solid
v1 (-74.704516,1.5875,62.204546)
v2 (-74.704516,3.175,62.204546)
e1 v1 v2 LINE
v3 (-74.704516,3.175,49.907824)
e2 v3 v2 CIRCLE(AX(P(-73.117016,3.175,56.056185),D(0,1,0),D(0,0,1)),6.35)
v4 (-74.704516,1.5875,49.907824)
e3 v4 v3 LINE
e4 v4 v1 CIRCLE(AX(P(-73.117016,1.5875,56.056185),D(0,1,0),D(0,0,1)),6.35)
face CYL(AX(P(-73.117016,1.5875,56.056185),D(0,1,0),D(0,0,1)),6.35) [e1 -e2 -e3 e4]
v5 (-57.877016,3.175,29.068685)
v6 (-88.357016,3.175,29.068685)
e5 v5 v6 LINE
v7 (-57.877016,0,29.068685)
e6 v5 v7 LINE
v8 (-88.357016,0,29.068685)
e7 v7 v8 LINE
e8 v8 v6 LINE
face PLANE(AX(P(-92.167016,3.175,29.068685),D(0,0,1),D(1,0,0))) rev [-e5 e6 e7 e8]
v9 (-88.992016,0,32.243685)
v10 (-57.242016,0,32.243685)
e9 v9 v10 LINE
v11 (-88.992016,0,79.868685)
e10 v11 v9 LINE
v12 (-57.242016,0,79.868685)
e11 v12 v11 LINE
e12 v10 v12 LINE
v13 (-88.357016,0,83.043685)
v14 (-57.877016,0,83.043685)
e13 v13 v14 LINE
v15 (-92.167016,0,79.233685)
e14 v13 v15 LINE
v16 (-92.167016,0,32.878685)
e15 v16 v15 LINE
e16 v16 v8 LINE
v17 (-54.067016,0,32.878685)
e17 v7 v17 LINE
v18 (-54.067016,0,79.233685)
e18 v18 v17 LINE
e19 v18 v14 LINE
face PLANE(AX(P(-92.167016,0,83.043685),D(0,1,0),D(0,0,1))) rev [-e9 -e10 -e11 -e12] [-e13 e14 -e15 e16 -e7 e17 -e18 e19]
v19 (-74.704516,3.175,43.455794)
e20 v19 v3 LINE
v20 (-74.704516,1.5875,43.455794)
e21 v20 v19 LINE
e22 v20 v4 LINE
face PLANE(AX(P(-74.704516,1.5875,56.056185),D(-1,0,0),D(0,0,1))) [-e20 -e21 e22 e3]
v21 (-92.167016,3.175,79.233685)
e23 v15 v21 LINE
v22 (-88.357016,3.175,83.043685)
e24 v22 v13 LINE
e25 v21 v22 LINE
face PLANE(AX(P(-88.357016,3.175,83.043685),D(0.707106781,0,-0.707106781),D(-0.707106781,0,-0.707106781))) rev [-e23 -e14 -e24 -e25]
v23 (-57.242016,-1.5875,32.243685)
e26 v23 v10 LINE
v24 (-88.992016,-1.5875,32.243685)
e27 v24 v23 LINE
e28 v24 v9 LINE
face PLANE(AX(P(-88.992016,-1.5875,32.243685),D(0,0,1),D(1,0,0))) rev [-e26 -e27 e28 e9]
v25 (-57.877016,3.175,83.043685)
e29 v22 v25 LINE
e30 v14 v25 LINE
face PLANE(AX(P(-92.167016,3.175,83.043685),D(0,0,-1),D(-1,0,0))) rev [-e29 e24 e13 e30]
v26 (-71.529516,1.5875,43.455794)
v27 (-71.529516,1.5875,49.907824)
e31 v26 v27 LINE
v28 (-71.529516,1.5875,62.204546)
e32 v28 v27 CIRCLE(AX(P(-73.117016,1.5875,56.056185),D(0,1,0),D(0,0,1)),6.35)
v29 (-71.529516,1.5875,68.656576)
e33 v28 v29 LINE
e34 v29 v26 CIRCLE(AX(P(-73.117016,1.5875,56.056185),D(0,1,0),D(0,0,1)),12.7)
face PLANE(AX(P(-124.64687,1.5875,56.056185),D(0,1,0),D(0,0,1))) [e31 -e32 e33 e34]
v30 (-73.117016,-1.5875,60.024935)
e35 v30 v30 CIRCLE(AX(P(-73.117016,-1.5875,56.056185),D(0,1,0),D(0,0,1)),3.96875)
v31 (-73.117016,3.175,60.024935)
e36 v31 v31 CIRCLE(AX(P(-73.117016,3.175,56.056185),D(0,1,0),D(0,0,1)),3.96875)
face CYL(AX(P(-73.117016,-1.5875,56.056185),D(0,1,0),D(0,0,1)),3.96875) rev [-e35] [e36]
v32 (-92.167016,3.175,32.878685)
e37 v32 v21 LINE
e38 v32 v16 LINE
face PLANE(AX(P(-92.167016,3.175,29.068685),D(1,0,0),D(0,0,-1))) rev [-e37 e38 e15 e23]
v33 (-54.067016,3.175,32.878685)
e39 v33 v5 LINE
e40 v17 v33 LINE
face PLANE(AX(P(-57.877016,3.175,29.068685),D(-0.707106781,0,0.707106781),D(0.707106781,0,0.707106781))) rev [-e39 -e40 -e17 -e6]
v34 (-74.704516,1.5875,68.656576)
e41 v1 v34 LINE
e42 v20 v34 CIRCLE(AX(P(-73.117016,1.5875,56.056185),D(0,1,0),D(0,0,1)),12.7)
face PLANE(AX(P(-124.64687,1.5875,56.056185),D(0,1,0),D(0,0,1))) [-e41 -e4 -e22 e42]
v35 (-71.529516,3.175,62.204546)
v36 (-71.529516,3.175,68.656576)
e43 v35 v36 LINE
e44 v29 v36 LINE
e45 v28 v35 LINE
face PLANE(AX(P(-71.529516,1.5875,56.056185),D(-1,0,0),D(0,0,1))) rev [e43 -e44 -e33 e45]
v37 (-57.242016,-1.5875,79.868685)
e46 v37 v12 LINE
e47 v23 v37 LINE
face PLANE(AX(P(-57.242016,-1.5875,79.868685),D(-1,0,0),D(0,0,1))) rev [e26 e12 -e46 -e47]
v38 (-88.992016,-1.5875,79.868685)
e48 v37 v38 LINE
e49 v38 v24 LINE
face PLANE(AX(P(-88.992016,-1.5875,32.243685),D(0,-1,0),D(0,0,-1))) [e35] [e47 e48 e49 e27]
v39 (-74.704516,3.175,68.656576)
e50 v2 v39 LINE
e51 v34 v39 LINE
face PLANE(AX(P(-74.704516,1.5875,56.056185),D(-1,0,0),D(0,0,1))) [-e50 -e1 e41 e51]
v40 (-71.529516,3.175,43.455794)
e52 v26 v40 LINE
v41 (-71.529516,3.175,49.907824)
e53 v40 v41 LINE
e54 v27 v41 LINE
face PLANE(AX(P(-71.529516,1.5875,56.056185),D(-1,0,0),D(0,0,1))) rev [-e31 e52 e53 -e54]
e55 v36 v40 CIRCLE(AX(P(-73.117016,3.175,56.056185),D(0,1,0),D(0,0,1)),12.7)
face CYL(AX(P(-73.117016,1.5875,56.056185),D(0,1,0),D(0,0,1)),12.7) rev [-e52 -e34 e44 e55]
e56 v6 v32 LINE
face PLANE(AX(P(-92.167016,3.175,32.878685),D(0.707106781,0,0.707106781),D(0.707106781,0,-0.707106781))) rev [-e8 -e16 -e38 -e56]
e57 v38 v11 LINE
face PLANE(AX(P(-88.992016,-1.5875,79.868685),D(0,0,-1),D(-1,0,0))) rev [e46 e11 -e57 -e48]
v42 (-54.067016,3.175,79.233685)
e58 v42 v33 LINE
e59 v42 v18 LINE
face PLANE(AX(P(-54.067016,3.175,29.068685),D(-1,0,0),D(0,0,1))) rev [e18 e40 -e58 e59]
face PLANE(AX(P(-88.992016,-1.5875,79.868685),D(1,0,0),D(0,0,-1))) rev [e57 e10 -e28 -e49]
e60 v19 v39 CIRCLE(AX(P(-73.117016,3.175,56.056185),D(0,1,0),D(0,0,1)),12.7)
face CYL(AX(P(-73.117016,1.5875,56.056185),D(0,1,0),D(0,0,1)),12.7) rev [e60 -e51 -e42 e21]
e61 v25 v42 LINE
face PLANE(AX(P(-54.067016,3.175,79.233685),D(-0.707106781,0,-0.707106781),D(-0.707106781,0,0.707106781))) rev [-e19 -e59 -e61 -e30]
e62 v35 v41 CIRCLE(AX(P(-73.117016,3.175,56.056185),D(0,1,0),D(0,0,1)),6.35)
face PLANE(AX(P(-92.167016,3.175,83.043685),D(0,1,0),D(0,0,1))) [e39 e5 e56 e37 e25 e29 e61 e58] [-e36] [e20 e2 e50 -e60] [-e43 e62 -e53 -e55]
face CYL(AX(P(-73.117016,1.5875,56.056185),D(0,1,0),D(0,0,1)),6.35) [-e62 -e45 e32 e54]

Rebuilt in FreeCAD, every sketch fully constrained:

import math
import FreeCAD as App
import Part
import Sketcher
from FreeCAD import Vector
Q = App.Units.Quantity


def edges_at(feature, points):
    """Names of the edges that pass closest to the given points."""
    edges = feature.Shape.Edges
    near = lambda p: min(range(len(edges)), key=lambda i: edges[i].distToShape(Part.Vertex(*p))[0])
    return sorted({f"Edge{near(p) + 1}" for p in points})


def add_polygon(sketch, points):
    """Adds a closed chain of lines whose ends are joined by coincident constraints."""
    first, n = sketch.GeometryCount, len(points)
    for a, b in zip(points, points[1:] + points[:1]):
        sketch.addGeometry(Part.LineSegment(App.Vector(*a, 0), App.Vector(*b, 0)), False)
    for i in range(n):
        sketch.addConstraint(Sketcher.Constraint("Coincident", first + i, 2, first + (i + 1) % n, 1))

doc = App.newDocument("Part")
params = doc.addObject("Spreadsheet::Sheet", "Params")
for row, (alias, value) in enumerate([
    ("sketch1_width", "1.5 in"),
    ("sketch1_height", "2.125 in"),
    ("pad1_length", "0.125 in"),
    ("sketch2_width", "1.25 in"),
    ("sketch2_height", "1.875 in"),
    ("pad2_length", "0.0625 in"),
    ("chamfer_size", "0.15 in"),
    ("sketch3_radius", "0.5 in"),
    ("sketch3_diameter", "0.15 in"),
    ("sketch3_radius2", "0.25 in"),
    ("pocket1_length", "0.0625 in"),
    ("sketch4_diameter", "0.3125 in"),
], start=1):
    params.set(f"A{row}", alias)
    params.set(f"B{row}", "=" + value)
    params.setAlias(f"B{row}", alias)

body = doc.addObject("PartDesign::Body", "Body")

# Sketch on XZ plane
sketch1 = body.newObject("Sketcher::SketchObject", "Sketch")
sketch1.AttachmentSupport = (doc.getObject("XZ_Plane"), [""])
sketch1.MapMode = "FlatFace"
add_polygon(sketch1, [(-92.167016, 29.068685), (-92.167016, 83.043685), (-54.067016, 83.043685), (-54.067016, 29.068685)])  # lines 0-3
sketch1.addConstraint(Sketcher.Constraint("Vertical", 0))
sketch1.addConstraint(Sketcher.Constraint("Horizontal", 1))
sketch1.addConstraint(Sketcher.Constraint("Vertical", 2))
sketch1.addConstraint(Sketcher.Constraint("Horizontal", 3))
sketch1.addConstraint(Sketcher.Constraint("DistanceX", 1, 1, 1, 2, Q("1.5 in")))
sketch1.addConstraint(Sketcher.Constraint("DistanceY", 0, 1, 0, 2, Q("2.125 in")))
sketch1.addConstraint(Sketcher.Constraint("DistanceX", 0, 2, -1, 1, Q("92.167016 mm")))
sketch1.addConstraint(Sketcher.Constraint("DistanceY", -1, 1, 0, 2, Q("83.043685 mm")))
sketch1.setExpression("Constraints[8]", "Params.sketch1_width")
sketch1.setExpression("Constraints[9]", "Params.sketch1_height")
pad1 = body.newObject("PartDesign::Pad", "Pad")
pad1.Profile = sketch1
pad1.setExpression("Length", "Params.pad1_length")
pad1.Reversed = True

# Sketch on XZ plane
sketch2 = body.newObject("Sketcher::SketchObject", "Sketch001")
sketch2.AttachmentSupport = (doc.getObject("XZ_Plane"), [""])
sketch2.MapMode = "FlatFace"
add_polygon(sketch2, [(-88.992016, 79.868685), (-88.992016, 32.243685), (-57.242016, 32.243685), (-57.242016, 79.868685)])  # lines 0-3
sketch2.addConstraint(Sketcher.Constraint("Vertical", 0))
sketch2.addConstraint(Sketcher.Constraint("Horizontal", 1))
sketch2.addConstraint(Sketcher.Constraint("Vertical", 2))
sketch2.addConstraint(Sketcher.Constraint("Horizontal", 3))
sketch2.addConstraint(Sketcher.Constraint("DistanceX", 1, 1, 1, 2, Q("1.25 in")))
sketch2.addConstraint(Sketcher.Constraint("DistanceY", 0, 2, 0, 1, Q("1.875 in")))
sketch2.addConstraint(Sketcher.Constraint("DistanceX", 0, 2, -1, 1, Q("88.992016 mm")))
sketch2.addConstraint(Sketcher.Constraint("DistanceY", -1, 1, 0, 2, Q("32.243685 mm")))
sketch2.setExpression("Constraints[8]", "Params.sketch2_width")
sketch2.setExpression("Constraints[9]", "Params.sketch2_height")
pad2 = body.newObject("PartDesign::Pad", "Pad001")
pad2.Profile = sketch2
pad2.setExpression("Length", "Params.pad2_length")
doc.recompute()

chamfer = body.newObject("PartDesign::Chamfer", "Chamfer")
chamfer.Base = (pad2, edges_at(pad2, [
    (-92.167, 1.587, 29.069),
    (-54.067, 1.587, 29.069),
    (-54.067, 1.587, 83.044),
    (-92.167, 1.587, 83.044),
]))
chamfer.setExpression("Size", "Params.chamfer_size")

# Sketch on XZ plane
sketch3 = body.newObject("Sketcher::SketchObject", "Sketch002")
sketch3.AttachmentSupport = (doc.getObject("XZ_Plane"), [""])
sketch3.MapMode = "FlatFace"
sketch3.AttachmentOffset = App.Placement(Vector(0, 0, -0.125 * 25.4), App.Rotation())
sketch3.addGeometry(Part.Circle(Vector(-73.117016, 56.056185, 0), Vector(0, 0, 1), 1.905), False)
sketch3.addGeometry(Part.LineSegment(Vector(-74.704516, 68.656576, 0), Vector(-74.704516, 62.204546, 0)), False)
sketch3.addGeometry(Part.ArcOfCircle(Part.Circle(Vector(-73.117016, 56.056185, 0), Vector(0, 0, 1), 6.35), math.radians(104.477512), math.radians(255.522488)), False)
sketch3.addGeometry(Part.LineSegment(Vector(-74.704516, 49.907824, 0), Vector(-74.704516, 43.455794, 0)), False)
sketch3.addGeometry(Part.ArcOfCircle(Part.Circle(Vector(-73.117016, 56.056185, 0), Vector(0, 0, 1), 12.7), math.radians(97.180756), math.radians(262.819244)), False)
sketch3.addGeometry(Part.ArcOfCircle(Part.Circle(Vector(-73.117016, 56.056185, 0), Vector(0, 0, 1), 6.35), math.radians(-75.522488), math.radians(75.522488)), False)
sketch3.addGeometry(Part.LineSegment(Vector(-71.529516, 62.204546, 0), Vector(-71.529516, 68.656576, 0)), False)
sketch3.addGeometry(Part.ArcOfCircle(Part.Circle(Vector(-73.117016, 56.056185, 0), Vector(0, 0, 1), 12.7), math.radians(-82.819244), math.radians(82.819244)), False)
sketch3.addGeometry(Part.LineSegment(Vector(-71.529516, 43.455794, 0), Vector(-71.529516, 49.907824, 0)), False)
sketch3.addConstraint(Sketcher.Constraint("Coincident", 1, 2, 2, 1))
sketch3.addConstraint(Sketcher.Constraint("Coincident", 2, 2, 3, 1))
sketch3.addConstraint(Sketcher.Constraint("Coincident", 3, 2, 4, 2))
sketch3.addConstraint(Sketcher.Constraint("Coincident", 4, 1, 1, 1))
sketch3.addConstraint(Sketcher.Constraint("Coincident", 5, 2, 6, 1))
sketch3.addConstraint(Sketcher.Constraint("Coincident", 6, 2, 7, 2))
sketch3.addConstraint(Sketcher.Constraint("Coincident", 7, 1, 8, 1))
sketch3.addConstraint(Sketcher.Constraint("Coincident", 8, 2, 5, 1))
sketch3.addConstraint(Sketcher.Constraint("Vertical", 1))
sketch3.addConstraint(Sketcher.Constraint("Vertical", 3))
sketch3.addConstraint(Sketcher.Constraint("Vertical", 6))
sketch3.addConstraint(Sketcher.Constraint("Vertical", 8))
sketch3.addConstraint(Sketcher.Constraint("Coincident", 2, 3, 0, 3))
sketch3.addConstraint(Sketcher.Constraint("Coincident", 4, 3, 0, 3))
sketch3.addConstraint(Sketcher.Constraint("Coincident", 5, 3, 0, 3))
sketch3.addConstraint(Sketcher.Constraint("Coincident", 7, 3, 0, 3))
sketch3.addConstraint(Sketcher.Constraint("Equal", 2, 5))
sketch3.addConstraint(Sketcher.Constraint("Equal", 4, 7))
sketch3.addConstraint(Sketcher.Constraint("Horizontal", 1, 2, 5, 2))
sketch3.addConstraint(Sketcher.Constraint("Horizontal", 3, 2, 7, 1))
sketch3.addConstraint(Sketcher.Constraint("Vertical", 1, 2, 2, 2))
sketch3.addConstraint(Sketcher.Constraint("Radius", 4, Q("0.5 in")))
sketch3.addConstraint(Sketcher.Constraint("Diameter", 0, Q("0.15 in")))
sketch3.addConstraint(Sketcher.Constraint("Radius", 2, Q("0.25 in")))
sketch3.addConstraint(Sketcher.Constraint("DistanceX", 1, 2, 0, 3, Q("0.0625 in")))
sketch3.addConstraint(Sketcher.Constraint("DistanceX", 0, 3, -1, 1, Q("73.117016 mm")))
sketch3.addConstraint(Sketcher.Constraint("DistanceY", -1, 1, 0, 3, Q("56.056185 mm")))
sketch3.setExpression("Constraints[21]", "Params.sketch3_radius")
sketch3.setExpression("Constraints[22]", "Params.sketch3_diameter")
sketch3.setExpression("Constraints[23]", "Params.sketch3_radius2")
pocket1 = body.newObject("PartDesign::Pocket", "Pocket")
pocket1.Profile = sketch3
pocket1.setExpression("Length", "Params.pocket1_length")
pocket1.Reversed = True

# Sketch on XZ plane
sketch4 = body.newObject("Sketcher::SketchObject", "Sketch003")
sketch4.AttachmentSupport = (doc.getObject("XZ_Plane"), [""])
sketch4.MapMode = "FlatFace"
sketch4.AttachmentOffset = App.Placement(Vector(0, 0, -0.125 * 25.4), App.Rotation())
sketch4.addGeometry(Part.Circle(Vector(-73.117016, 56.056185, 0), Vector(0, 0, 1), 3.96875), False)
sketch4.addConstraint(Sketcher.Constraint("Diameter", 0, Q("0.3125 in")))
sketch4.addConstraint(Sketcher.Constraint("DistanceX", 0, 3, -1, 1, Q("73.117016 mm")))
sketch4.addConstraint(Sketcher.Constraint("DistanceY", -1, 1, 0, 3, Q("56.056185 mm")))
sketch4.setExpression("Constraints[0]", "Params.sketch4_diameter")
pocket2 = body.newObject("PartDesign::Pocket", "Pocket001")
pocket2.Profile = sketch4
pocket2.Type = "ThroughAll"
pocket2.Reversed = True

doc.recompute()
